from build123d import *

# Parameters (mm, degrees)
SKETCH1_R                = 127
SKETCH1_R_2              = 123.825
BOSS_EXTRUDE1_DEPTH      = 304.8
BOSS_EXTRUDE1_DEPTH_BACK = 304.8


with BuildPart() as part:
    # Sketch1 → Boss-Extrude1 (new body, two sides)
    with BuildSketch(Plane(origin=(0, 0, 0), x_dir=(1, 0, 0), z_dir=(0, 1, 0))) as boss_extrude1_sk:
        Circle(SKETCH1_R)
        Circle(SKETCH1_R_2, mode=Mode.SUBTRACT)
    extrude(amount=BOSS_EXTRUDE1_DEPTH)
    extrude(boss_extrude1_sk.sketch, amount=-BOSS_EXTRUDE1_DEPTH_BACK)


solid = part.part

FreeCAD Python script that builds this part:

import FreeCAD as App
import Part
import Sketcher
from FreeCAD import Vector
Q = App.Units.Quantity

doc = App.newDocument("Part")
body = doc.addObject("PartDesign::Body", "Body")

# Sketch on XZ plane
sketch1 = body.newObject("Sketcher::SketchObject", "Sketch")
sketch1.AttachmentSupport = (doc.getObject("XZ_Plane"), [""])
sketch1.MapMode = "FlatFace"
sketch1.addGeometry([
    Part.Circle(Vector(0, 0, 0), Vector(0, 0, 1), 127),
    Part.Circle(Vector(0, 0, 0), Vector(0, 0, 1), 124),
], False)
sketch1.addConstraint([
    Sketcher.Constraint("Coincident", 0, 3, -1, 1),
    Sketcher.Constraint("Coincident", 1, 3, -1, 1),
    Sketcher.Constraint("Diameter", 0, Q("10 in")),
    Sketcher.Constraint("Diameter", 1, Q("9.75 in")),
])
pad1 = body.newObject("PartDesign::Pad", "Pad")
pad1.Profile = sketch1
pad1.Type = "TwoLengths"
pad1.Length = Q("12 in")
pad1.Length2 = Q("12 in")
pad1.Reversed = True

doc.recompute()
